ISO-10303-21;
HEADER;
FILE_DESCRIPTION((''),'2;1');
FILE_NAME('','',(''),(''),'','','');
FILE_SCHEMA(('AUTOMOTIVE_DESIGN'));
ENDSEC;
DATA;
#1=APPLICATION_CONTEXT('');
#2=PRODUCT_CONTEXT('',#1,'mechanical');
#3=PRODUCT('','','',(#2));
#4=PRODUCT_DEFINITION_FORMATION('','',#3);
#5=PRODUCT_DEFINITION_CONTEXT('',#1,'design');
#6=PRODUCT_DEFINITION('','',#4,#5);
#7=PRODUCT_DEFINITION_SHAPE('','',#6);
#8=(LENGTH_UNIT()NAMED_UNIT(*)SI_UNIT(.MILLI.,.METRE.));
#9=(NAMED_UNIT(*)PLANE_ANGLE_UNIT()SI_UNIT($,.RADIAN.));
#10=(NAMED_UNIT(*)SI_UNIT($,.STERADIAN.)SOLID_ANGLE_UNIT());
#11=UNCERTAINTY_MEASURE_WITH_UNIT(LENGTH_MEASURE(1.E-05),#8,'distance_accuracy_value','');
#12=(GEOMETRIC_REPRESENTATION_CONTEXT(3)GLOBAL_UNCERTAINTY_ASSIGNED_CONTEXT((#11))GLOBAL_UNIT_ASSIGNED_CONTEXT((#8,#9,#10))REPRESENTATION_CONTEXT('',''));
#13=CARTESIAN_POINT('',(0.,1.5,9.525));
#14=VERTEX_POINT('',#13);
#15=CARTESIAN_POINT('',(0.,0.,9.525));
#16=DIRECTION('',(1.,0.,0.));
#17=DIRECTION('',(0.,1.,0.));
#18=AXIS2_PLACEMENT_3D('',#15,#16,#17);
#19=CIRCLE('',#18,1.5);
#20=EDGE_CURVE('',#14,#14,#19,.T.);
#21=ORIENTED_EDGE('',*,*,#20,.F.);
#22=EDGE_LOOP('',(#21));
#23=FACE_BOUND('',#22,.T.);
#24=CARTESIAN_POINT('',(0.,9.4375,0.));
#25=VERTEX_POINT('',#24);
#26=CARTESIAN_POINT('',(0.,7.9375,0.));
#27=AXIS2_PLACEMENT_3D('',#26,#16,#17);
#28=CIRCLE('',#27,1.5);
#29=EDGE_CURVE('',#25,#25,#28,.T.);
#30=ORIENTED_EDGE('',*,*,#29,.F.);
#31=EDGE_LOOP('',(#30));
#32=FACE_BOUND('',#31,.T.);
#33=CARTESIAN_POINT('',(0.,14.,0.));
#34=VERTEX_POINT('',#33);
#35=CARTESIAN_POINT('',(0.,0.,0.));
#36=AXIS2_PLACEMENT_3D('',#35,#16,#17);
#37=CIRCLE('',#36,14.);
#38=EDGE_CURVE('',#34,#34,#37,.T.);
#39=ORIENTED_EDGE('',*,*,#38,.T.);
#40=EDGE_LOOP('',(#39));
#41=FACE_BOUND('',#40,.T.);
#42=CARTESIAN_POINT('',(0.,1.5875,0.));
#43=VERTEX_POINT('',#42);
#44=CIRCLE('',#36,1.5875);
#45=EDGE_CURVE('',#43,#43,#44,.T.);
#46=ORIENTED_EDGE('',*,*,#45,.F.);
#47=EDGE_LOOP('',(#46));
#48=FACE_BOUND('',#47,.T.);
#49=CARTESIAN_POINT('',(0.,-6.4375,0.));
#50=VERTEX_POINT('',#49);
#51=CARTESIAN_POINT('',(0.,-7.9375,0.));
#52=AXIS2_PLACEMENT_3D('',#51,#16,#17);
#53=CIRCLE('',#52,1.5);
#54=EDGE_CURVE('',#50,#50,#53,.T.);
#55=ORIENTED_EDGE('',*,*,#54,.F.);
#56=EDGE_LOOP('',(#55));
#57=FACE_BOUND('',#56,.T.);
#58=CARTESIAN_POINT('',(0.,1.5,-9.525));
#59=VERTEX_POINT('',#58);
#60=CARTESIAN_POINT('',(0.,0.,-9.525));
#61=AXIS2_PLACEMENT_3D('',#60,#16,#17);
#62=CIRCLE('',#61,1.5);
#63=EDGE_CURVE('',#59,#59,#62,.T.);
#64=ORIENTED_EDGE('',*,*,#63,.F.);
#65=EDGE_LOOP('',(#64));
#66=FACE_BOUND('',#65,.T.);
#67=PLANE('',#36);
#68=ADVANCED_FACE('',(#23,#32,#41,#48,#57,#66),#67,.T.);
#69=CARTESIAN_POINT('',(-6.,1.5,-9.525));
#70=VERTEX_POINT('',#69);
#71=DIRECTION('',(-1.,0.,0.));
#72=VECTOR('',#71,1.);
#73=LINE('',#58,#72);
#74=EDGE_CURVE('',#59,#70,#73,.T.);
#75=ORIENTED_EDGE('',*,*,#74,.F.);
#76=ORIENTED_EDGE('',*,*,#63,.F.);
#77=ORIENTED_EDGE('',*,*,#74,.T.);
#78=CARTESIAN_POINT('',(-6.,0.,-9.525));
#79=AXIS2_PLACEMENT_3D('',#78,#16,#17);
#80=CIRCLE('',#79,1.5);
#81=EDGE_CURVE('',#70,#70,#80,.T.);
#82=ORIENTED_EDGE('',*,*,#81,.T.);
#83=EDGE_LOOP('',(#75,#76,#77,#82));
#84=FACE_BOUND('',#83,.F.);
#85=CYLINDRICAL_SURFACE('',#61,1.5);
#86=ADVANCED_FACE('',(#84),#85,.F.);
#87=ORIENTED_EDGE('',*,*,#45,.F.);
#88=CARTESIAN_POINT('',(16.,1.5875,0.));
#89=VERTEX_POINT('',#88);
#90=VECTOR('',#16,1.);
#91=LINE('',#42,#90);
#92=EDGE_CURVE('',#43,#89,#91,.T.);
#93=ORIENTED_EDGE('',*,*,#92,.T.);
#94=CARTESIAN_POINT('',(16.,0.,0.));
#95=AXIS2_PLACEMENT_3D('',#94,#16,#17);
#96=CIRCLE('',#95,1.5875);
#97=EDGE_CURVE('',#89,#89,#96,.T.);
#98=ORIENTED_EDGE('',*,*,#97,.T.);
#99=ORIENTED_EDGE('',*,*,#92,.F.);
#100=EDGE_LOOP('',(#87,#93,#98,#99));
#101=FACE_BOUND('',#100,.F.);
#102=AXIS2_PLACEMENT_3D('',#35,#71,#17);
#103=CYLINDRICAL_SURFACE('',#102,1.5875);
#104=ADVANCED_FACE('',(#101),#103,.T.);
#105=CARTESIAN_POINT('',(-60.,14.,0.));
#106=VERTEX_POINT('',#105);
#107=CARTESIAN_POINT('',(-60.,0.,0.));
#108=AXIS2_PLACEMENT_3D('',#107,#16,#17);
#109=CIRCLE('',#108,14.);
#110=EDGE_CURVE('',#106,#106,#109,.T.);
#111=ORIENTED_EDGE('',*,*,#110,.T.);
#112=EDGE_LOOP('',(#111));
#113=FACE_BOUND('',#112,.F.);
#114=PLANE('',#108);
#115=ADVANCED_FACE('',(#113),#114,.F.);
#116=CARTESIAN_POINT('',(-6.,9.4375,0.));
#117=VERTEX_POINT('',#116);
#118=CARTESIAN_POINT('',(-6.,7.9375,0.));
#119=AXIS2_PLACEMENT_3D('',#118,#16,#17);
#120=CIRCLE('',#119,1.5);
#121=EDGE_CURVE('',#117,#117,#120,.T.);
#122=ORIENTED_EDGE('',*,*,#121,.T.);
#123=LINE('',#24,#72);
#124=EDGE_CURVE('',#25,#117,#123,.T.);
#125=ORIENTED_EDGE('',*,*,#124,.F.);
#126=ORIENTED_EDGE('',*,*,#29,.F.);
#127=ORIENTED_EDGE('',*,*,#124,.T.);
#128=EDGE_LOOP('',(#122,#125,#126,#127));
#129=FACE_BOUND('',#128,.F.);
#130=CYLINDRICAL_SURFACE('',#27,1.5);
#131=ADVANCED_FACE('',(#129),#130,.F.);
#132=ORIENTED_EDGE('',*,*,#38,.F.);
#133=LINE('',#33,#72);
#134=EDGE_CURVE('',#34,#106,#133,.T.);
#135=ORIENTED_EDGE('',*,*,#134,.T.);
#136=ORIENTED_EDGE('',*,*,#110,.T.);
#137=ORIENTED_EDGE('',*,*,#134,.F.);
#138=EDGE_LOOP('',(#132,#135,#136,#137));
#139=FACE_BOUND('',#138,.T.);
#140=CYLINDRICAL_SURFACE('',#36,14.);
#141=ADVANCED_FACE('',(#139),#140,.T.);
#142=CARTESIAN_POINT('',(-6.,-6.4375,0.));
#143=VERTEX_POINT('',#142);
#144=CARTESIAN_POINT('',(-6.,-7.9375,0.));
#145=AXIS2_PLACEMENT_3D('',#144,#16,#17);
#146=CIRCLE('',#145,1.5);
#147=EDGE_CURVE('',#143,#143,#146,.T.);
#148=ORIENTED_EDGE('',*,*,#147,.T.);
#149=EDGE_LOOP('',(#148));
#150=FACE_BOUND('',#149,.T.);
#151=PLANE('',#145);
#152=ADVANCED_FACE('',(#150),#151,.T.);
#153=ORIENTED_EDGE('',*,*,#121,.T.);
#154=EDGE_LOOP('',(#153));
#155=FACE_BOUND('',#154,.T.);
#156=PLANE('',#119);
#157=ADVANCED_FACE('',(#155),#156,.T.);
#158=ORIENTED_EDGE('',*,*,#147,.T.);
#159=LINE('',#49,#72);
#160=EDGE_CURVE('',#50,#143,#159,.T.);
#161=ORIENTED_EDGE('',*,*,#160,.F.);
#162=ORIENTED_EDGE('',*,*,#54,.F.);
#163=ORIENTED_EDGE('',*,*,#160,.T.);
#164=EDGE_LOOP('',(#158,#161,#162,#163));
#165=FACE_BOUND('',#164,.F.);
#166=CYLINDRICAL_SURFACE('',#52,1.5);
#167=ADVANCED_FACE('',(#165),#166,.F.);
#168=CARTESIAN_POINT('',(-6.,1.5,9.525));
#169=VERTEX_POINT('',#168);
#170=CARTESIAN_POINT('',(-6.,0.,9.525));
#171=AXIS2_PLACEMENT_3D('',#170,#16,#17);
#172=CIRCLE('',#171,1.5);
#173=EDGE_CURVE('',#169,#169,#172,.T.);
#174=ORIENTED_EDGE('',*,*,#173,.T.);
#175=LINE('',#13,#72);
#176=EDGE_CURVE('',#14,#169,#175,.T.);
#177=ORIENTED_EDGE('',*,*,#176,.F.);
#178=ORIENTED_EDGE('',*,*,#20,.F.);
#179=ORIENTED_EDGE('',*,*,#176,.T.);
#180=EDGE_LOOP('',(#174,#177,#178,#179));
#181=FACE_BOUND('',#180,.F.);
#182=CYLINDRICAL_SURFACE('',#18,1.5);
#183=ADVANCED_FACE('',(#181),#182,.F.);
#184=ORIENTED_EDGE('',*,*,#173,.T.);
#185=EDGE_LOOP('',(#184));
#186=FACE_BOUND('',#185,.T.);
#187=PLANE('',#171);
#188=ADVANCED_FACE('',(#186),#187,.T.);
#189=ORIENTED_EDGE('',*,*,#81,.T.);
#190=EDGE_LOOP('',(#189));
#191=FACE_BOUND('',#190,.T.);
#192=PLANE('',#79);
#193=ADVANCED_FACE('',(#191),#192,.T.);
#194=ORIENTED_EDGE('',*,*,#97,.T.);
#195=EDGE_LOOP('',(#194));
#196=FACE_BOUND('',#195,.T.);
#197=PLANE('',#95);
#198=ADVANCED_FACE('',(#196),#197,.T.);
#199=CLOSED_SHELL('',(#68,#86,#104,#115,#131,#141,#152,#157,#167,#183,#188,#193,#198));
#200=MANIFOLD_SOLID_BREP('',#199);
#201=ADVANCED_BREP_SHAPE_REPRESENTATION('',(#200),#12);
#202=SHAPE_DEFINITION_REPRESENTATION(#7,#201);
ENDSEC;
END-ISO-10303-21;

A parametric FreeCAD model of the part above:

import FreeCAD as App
import Part
import Sketcher

V = App.Vector
Q = App.Units.Quantity

doc = App.newDocument("Part")
body = doc.addObject("PartDesign::Body", "Body")

# Sketch on YZ plane
sketch1 = body.newObject("Sketcher::SketchObject", "Sketch")
sketch1.AttachmentSupport = (doc.getObject("YZ_Plane"), [""])
sketch1.MapMode = "FlatFace"
sketch1.addGeometry(Part.Circle(V(0, 0, 0), V(0, 0, 1), 14), False)
sketch1.addConstraint([
    Sketcher.Constraint("Coincident", 0, 3, -1, 1),
    Sketcher.Constraint("Diameter", 0, Q("28 mm")),
])
pad1 = body.newObject("PartDesign::Pad", "Pad")
pad1.Profile = sketch1
pad1.Length = 60
pad1.Reversed = True

# Sketch on YZ plane
sketch2 = body.newObject("Sketcher::SketchObject", "Sketch001")
sketch2.AttachmentSupport = (doc.getObject("YZ_Plane"), [""])
sketch2.MapMode = "FlatFace"
sketch2.addGeometry(Part.Circle(V(0, 0, 0), V(0, 0, 1), 1.6), False)
sketch2.addConstraint([
    Sketcher.Constraint("Coincident", 0, 3, -1, 1),
    Sketcher.Constraint("Diameter", 0, Q("3.175 mm")),
])
pad2 = body.newObject("PartDesign::Pad", "Pad001")
pad2.Profile = sketch2
pad2.Length = 16

# Sketch on YZ plane
sketch3 = body.newObject("Sketcher::SketchObject", "Sketch002")
sketch3.AttachmentSupport = (doc.getObject("YZ_Plane"), [""])
sketch3.MapMode = "FlatFace"
sketch3.addGeometry([
    Part.Circle(V(0, 9.5, 0), V(0, 0, 1), 1.5),
    Part.Circle(V(7.9, 0, 0), V(0, 0, 1), 1.5),
    Part.Circle(V(0, -9.5, 0), V(0, 0, 1), 1.5),
    Part.Circle(V(-7.9, 0, 0), V(0, 0, 1), 1.5),
], False)
sketch3.addConstraint([
    Sketcher.Constraint("Equal", 0, 1),
    Sketcher.Constraint("Equal", 1, 2),
    Sketcher.Constraint("Equal", 2, 3),
    Sketcher.Constraint("Symmetric", 0, 3, 2, 3, -1, 1),
    Sketcher.Constraint("Symmetric", 1, 3, 3, 3, -1, 1),
    Sketcher.Constraint("PointOnObject", 0, 3, -2),
    Sketcher.Constraint("PointOnObject", 1, 3, -1),
    Sketcher.Constraint("Diameter", 0, Q("3 mm")),
    Sketcher.Constraint("DistanceY", 2, 3, 0, 3, Q("19.05 mm")),
    Sketcher.Constraint("DistanceX", 3, 3, 1, 3, Q("15.875 mm")),
])
pocket1 = body.newObject("PartDesign::Pocket", "Pocket")
pocket1.Profile = sketch3
pocket1.Length = 6

doc.recompute()
